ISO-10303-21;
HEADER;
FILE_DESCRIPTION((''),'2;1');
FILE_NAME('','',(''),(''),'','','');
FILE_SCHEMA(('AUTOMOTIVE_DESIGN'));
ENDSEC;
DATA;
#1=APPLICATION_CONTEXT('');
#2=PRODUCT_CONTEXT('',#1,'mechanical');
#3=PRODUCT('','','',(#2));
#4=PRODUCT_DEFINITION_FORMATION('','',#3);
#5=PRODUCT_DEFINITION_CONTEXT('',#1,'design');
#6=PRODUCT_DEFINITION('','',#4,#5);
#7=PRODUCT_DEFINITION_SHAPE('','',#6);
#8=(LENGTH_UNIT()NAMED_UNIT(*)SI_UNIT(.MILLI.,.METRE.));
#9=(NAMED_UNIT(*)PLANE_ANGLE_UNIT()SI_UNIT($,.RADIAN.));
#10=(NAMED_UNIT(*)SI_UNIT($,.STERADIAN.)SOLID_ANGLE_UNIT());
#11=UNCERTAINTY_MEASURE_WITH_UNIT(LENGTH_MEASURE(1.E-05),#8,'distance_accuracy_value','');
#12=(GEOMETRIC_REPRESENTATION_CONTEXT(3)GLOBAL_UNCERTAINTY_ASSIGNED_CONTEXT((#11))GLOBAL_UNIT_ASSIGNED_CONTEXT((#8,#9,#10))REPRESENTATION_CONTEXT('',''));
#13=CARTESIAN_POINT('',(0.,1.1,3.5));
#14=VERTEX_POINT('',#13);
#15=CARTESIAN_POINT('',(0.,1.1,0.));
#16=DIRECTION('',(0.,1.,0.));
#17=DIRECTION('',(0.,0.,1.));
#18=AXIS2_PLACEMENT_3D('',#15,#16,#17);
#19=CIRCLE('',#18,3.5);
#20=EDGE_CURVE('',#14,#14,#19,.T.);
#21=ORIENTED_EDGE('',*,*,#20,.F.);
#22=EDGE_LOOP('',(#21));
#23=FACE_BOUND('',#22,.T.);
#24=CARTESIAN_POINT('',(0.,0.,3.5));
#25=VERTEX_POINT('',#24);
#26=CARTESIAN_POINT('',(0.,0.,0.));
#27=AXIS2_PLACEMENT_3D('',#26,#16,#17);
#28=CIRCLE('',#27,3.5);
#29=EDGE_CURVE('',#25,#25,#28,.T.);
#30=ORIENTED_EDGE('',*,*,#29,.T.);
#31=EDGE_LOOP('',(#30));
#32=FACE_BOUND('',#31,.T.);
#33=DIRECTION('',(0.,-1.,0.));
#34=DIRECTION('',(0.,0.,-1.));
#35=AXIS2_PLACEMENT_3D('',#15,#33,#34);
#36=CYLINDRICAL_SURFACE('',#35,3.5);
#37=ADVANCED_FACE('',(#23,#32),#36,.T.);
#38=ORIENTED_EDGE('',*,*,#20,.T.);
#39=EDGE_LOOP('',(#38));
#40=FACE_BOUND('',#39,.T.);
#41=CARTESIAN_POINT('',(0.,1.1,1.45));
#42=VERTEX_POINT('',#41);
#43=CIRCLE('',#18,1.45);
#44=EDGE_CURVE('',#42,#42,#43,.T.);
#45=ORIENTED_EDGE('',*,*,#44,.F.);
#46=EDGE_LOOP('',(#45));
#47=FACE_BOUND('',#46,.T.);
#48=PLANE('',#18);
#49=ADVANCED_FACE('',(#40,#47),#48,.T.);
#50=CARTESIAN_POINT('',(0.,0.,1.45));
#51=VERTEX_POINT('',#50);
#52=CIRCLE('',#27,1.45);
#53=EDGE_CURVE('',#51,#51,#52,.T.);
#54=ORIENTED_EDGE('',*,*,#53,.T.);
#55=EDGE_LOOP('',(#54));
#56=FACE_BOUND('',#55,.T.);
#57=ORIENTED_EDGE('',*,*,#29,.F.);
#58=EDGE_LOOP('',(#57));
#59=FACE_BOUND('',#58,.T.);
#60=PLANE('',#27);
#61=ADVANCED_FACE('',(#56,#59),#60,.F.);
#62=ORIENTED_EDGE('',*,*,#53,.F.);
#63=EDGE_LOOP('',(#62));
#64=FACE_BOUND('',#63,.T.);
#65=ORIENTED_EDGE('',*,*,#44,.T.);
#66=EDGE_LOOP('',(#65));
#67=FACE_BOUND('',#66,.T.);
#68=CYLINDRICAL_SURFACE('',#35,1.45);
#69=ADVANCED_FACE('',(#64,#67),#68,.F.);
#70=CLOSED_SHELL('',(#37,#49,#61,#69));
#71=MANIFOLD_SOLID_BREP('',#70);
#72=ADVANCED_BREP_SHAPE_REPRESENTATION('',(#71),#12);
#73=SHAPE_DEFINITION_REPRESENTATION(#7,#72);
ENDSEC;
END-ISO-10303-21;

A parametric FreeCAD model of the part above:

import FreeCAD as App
import Part
import Sketcher
from FreeCAD import Vector

doc = App.newDocument("Part")
params = doc.addObject("Spreadsheet::Sheet", "Params")
for row, (alias, value) in enumerate([
    ("sketch1_diameter", "7 mm"),
    ("sketch1_diameter2", "2.9 mm"),
    ("pad1_length", "1.1 mm"),
], start=1):
    params.set(f"A{row}", alias)
    params.set(f"B{row}", "=" + value)
    params.setAlias(f"B{row}", alias)

body = doc.addObject("PartDesign::Body", "Body")

sketch1 = doc.addObject("Sketcher::SketchObject", "Sketch")
body.addObject(sketch1)
sketch1.AttachmentSupport = (doc.XZ_Plane, [""])
sketch1.MapMode = "FlatFace"
sketch1.addGeometry([
    Part.Circle(Vector(0, 0, 0), Vector(0, 0, 1), 3.5),
    Part.Circle(Vector(0, 0, 0), Vector(0, 0, 1), 1.4),
], False)
sketch1.addConstraint([
    Sketcher.Constraint("Coincident", 0, 3, -1, 1),
    Sketcher.Constraint("Coincident", 1, 3, -1, 1),
    Sketcher.Constraint("Diameter", 0, 7.0),
    Sketcher.Constraint("Diameter", 1, 2.9),
])
sketch1.setExpression("Constraints[2]", "Params.sketch1_diameter")
sketch1.setExpression("Constraints[3]", "Params.sketch1_diameter2")
pad1 = doc.addObject("PartDesign::Pad", "Pad")
body.addObject(pad1)
pad1.Profile = sketch1
pad1.setExpression("Length", "Params.pad1_length")
pad1.Reversed = True

doc.recompute()
